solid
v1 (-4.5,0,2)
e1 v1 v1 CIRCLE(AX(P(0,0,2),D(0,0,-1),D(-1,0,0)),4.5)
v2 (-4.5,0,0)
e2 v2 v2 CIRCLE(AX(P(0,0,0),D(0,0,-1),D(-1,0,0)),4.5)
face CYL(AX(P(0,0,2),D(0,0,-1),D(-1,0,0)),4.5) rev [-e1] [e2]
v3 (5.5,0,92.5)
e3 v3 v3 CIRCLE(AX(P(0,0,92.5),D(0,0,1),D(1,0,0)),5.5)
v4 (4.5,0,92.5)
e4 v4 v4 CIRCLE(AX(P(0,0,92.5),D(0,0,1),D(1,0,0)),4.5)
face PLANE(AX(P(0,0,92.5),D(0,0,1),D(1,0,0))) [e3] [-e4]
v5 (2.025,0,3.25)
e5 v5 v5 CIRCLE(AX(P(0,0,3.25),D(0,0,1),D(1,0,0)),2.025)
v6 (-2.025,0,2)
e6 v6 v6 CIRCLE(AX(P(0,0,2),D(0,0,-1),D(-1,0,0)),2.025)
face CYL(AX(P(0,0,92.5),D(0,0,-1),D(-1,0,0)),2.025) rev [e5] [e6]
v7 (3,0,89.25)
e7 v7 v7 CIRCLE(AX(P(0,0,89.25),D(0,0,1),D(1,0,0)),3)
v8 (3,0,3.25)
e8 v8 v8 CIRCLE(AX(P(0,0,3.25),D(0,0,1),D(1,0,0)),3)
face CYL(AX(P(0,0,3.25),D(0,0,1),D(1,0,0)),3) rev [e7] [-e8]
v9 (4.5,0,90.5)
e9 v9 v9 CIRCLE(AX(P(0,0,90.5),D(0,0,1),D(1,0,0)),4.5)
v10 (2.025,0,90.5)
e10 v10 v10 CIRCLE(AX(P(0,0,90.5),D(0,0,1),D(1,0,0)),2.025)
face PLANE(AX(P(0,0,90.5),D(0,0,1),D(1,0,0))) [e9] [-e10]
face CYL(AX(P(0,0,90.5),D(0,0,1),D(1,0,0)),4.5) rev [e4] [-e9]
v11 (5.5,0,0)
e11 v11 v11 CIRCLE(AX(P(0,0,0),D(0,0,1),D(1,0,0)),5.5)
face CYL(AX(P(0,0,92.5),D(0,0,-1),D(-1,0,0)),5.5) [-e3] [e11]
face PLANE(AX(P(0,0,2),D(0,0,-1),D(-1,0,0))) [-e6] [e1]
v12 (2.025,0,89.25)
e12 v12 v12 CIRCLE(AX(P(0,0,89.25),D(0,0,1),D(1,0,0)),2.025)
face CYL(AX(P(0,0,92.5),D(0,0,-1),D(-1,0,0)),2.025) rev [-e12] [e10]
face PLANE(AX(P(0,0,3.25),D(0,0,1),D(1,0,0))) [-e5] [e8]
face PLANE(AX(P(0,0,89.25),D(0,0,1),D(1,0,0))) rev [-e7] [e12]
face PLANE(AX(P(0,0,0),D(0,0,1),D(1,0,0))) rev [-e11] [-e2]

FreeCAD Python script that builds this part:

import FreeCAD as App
import Part
import Sketcher
from FreeCAD import Vector

doc = App.newDocument("Part")
params = doc.addObject("Spreadsheet::Sheet", "Params")
for row, (alias, value) in enumerate([
    ("sketch1_diameter", "11 mm"),
    ("sketch1_diameter2", "4.05 mm"),
    ("pad1_length", "92.5 mm"),
    ("sketch2_diameter", "9 mm"),
    ("pocket1_length", "2 mm"),
    ("sketch3_diameter", "9 mm"),
    ("pocket2_length", "2 mm"),
    ("sketch4_diameter", "6 mm"),
    ("pocket3_length", "86 mm"),
], start=1):
    params.set(f"A{row}", alias)
    params.set(f"B{row}", "=" + value)
    params.setAlias(f"B{row}", alias)

body = doc.addObject("PartDesign::Body", "Body")

# Sketch on XY plane
sketch1 = body.newObject("Sketcher::SketchObject", "Sketch")
sketch1.AttachmentSupport = (doc.getObject("XY_Plane"), [""])
sketch1.MapMode = "FlatFace"
sketch1.addGeometry(Part.Circle(Vector(0, 0, 0), Vector(0, 0, 1), 5.5), False)
sketch1.addGeometry(Part.Circle(Vector(0, 0, 0), Vector(0, 0, 1), 2), False)
sketch1.addConstraint(Sketcher.Constraint("Coincident", 0, 3, -1, 1))
sketch1.addConstraint(Sketcher.Constraint("Coincident", 1, 3, -1, 1))
sketch1.addConstraint(Sketcher.Constraint("Diameter", 0, 11.0))
sketch1.addConstraint(Sketcher.Constraint("Diameter", 1, 4.05))
sketch1.setExpression("Constraints[2]", "Params.sketch1_diameter")
sketch1.setExpression("Constraints[3]", "Params.sketch1_diameter2")
pad1 = body.newObject("PartDesign::Pad", "Pad")
pad1.Profile = sketch1
pad1.setExpression("Length", "Params.pad1_length")

# Sketch on XY plane
sketch2 = body.newObject("Sketcher::SketchObject", "Sketch001")
sketch2.AttachmentSupport = (doc.getObject("XY_Plane"), [""])
sketch2.MapMode = "FlatFace"
sketch2.AttachmentOffset = App.Placement(Vector(0, 0, 92.5), App.Rotation())
sketch2.addGeometry(Part.Circle(Vector(0, 0, 0), Vector(0, 0, 1), 4.5), False)
sketch2.addConstraint(Sketcher.Constraint("Coincident", 0, 3, -1, 1))
sketch2.addConstraint(Sketcher.Constraint("Diameter", 0, 9.0))
sketch2.setExpression("Constraints[1]", "Params.sketch2_diameter")
pocket1 = body.newObject("PartDesign::Pocket", "Pocket")
pocket1.Profile = sketch2
pocket1.setExpression("Length", "Params.pocket1_length")

# Sketch on XY plane
sketch3 = body.newObject("Sketcher::SketchObject", "Sketch002")
sketch3.AttachmentSupport = (doc.getObject("XY_Plane"), [""])
sketch3.MapMode = "FlatFace"
sketch3.addGeometry(Part.Circle(Vector(0, 0, 0), Vector(0, 0, 1), 4.5), False)
sketch3.addConstraint(Sketcher.Constraint("Coincident", 0, 3, -1, 1))
sketch3.addConstraint(Sketcher.Constraint("Diameter", 0, 9.0))
sketch3.setExpression("Constraints[1]", "Params.sketch3_diameter")
pocket2 = body.newObject("PartDesign::Pocket", "Pocket001")
pocket2.Profile = sketch3
pocket2.setExpression("Length", "Params.pocket2_length")
pocket2.Reversed = True

# Sketch on XY plane
sketch4 = body.newObject("Sketcher::SketchObject", "Sketch003")
sketch4.AttachmentSupport = (doc.getObject("XY_Plane"), [""])
sketch4.MapMode = "FlatFace"
sketch4.AttachmentOffset = App.Placement(Vector(0, 0, 46.25), App.Rotation())
sketch4.addGeometry(Part.Circle(Vector(0, 0, 0), Vector(0, 0, 1), 3), False)
sketch4.addConstraint(Sketcher.Constraint("Coincident", 0, 3, -1, 1))
sketch4.addConstraint(Sketcher.Constraint("Diameter", 0, 6.0))
sketch4.setExpression("Constraints[1]", "Params.sketch4_diameter")
pocket3 = body.newObject("PartDesign::Pocket", "Pocket002")
pocket3.Profile = sketch4
pocket3.setExpression("Length", "Params.pocket3_length")
pocket3.Midplane = True

doc.recompute()
